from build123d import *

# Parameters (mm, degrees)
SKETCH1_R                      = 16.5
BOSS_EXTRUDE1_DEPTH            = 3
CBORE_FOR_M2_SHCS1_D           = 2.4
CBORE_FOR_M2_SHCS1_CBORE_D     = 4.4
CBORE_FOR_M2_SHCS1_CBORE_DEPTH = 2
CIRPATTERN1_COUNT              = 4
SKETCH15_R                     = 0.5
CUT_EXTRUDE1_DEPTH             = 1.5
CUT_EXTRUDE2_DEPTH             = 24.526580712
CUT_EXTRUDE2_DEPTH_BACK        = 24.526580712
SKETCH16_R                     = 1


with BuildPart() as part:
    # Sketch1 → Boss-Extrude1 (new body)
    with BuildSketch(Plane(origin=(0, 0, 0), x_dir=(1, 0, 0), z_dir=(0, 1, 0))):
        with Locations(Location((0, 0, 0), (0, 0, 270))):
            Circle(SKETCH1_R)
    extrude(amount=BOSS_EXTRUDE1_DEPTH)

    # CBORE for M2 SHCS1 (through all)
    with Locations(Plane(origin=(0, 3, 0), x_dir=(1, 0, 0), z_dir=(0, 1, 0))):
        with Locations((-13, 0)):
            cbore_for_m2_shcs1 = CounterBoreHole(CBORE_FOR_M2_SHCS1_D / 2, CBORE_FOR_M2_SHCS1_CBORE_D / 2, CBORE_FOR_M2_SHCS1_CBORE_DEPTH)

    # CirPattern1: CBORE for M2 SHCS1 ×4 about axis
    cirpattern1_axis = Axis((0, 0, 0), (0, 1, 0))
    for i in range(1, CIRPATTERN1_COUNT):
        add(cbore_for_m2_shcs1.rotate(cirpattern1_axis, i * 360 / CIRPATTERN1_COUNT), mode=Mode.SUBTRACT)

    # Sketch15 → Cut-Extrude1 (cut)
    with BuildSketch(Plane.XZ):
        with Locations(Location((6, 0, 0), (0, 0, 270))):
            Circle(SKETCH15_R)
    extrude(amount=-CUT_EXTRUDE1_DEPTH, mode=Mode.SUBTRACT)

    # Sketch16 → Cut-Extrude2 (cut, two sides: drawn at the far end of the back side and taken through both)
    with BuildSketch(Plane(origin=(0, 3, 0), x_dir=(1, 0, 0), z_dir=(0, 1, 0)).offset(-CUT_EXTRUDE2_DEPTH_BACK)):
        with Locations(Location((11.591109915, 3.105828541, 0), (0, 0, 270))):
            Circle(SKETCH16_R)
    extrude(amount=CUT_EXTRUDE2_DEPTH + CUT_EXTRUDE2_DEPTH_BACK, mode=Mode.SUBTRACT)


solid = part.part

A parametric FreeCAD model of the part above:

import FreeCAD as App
import Part
import Sketcher
from FreeCAD import Vector

doc = App.newDocument("Part")
body = doc.addObject("PartDesign::Body", "Body")

sketch1 = body.newObject("Sketcher::SketchObject", "Sketch")
sketch1.AttachmentSupport = (doc.getObject("XZ_Plane"), [""])
sketch1.MapMode = "FlatFace"
sketch1.addGeometry(Part.Circle(Vector(0, 0, 0), Vector(0, 0, 1), 16.5), False)
sketch1.addConstraint(Sketcher.Constraint("Coincident", 0, 3, -1, 1))
sketch1.addConstraint(Sketcher.Constraint("Diameter", 0, 33.0))
pad1 = body.newObject("PartDesign::Pad", "Pad")
pad1.Profile = sketch1
pad1.Length = 3
pad1.Reversed = True

sketch2 = body.newObject("Sketcher::SketchObject", "Sketch001")
sketch2.AttachmentSupport = (doc.getObject("XZ_Plane"), [""])
sketch2.MapMode = "FlatFace"
sketch2.AttachmentOffset = App.Placement(Vector(0, 0, -3), App.Rotation())
sketch2.addGeometry(Part.Circle(Vector(-13, 0, 0), Vector(0, 0, 1), 1.2), False)
sketch2.addConstraint(Sketcher.Constraint("PointOnObject", 0, 3, -1))
sketch2.addConstraint(Sketcher.Constraint("Diameter", 0, 2.4))
sketch2.addConstraint(Sketcher.Constraint("DistanceX", 0, 3, -1, 1, 13.0))
doc.recompute()
hole = body.newObject("PartDesign::Hole", "Hole")
hole.Profile = sketch2
hole.ThreadType = "None"
hole.Diameter = 2.4
hole.DepthType = "ThroughAll"
hole.HoleCutType = "Counterbore"
hole.HoleCutDiameter = 4.4
hole.HoleCutDepth = 2
hole.Reversed = True
doc.recompute()

polarpattern = body.newObject("PartDesign::PolarPattern", "PolarPattern")
polarpattern.Originals = [hole]
polarpattern.Axis = (doc.getObject("Y_Axis"), [""])
polarpattern.Angle = 360
polarpattern.Occurrences = 4
body.Tip = polarpattern

sketch3 = body.newObject("Sketcher::SketchObject", "Sketch002")
sketch3.AttachmentSupport = (doc.getObject("XZ_Plane"), [""])
sketch3.MapMode = "FlatFace"
sketch3.addGeometry(Part.Circle(Vector(6, 0, 0), Vector(0, 0, 1), 0.5), False)
sketch3.addConstraint(Sketcher.Constraint("PointOnObject", 0, 3, -1))
sketch3.addConstraint(Sketcher.Constraint("Diameter", 0, 1.0))
sketch3.addConstraint(Sketcher.Constraint("DistanceX", -1, 1, 0, 3, 6.0))
pocket1 = body.newObject("PartDesign::Pocket", "Pocket")
pocket1.Profile = sketch3
pocket1.Length = 1.5

sketch4 = body.newObject("Sketcher::SketchObject", "Sketch003")
sketch4.AttachmentSupport = (doc.getObject("XZ_Plane"), [""])
sketch4.MapMode = "FlatFace"
sketch4.AttachmentOffset = App.Placement(Vector(0, 0, -3), App.Rotation())
sketch4.addGeometry(Part.Circle(Vector(11.59111, -3.105829, 0), Vector(0, 0, 1), 1), False)
sketch4.addConstraint(Sketcher.Constraint("Diameter", 0, 2.0))
sketch4.addConstraint(Sketcher.Constraint("DistanceX", -1, 1, 0, 3, 11.59111))
sketch4.addConstraint(Sketcher.Constraint("DistanceY", 0, 3, -1, 1, 3.105829))
pocket2 = body.newObject("PartDesign::Pocket", "Pocket001")
pocket2.Profile = sketch4
pocket2.Type = "ThroughAll"
pocket2.Midplane = True

doc.recompute()
